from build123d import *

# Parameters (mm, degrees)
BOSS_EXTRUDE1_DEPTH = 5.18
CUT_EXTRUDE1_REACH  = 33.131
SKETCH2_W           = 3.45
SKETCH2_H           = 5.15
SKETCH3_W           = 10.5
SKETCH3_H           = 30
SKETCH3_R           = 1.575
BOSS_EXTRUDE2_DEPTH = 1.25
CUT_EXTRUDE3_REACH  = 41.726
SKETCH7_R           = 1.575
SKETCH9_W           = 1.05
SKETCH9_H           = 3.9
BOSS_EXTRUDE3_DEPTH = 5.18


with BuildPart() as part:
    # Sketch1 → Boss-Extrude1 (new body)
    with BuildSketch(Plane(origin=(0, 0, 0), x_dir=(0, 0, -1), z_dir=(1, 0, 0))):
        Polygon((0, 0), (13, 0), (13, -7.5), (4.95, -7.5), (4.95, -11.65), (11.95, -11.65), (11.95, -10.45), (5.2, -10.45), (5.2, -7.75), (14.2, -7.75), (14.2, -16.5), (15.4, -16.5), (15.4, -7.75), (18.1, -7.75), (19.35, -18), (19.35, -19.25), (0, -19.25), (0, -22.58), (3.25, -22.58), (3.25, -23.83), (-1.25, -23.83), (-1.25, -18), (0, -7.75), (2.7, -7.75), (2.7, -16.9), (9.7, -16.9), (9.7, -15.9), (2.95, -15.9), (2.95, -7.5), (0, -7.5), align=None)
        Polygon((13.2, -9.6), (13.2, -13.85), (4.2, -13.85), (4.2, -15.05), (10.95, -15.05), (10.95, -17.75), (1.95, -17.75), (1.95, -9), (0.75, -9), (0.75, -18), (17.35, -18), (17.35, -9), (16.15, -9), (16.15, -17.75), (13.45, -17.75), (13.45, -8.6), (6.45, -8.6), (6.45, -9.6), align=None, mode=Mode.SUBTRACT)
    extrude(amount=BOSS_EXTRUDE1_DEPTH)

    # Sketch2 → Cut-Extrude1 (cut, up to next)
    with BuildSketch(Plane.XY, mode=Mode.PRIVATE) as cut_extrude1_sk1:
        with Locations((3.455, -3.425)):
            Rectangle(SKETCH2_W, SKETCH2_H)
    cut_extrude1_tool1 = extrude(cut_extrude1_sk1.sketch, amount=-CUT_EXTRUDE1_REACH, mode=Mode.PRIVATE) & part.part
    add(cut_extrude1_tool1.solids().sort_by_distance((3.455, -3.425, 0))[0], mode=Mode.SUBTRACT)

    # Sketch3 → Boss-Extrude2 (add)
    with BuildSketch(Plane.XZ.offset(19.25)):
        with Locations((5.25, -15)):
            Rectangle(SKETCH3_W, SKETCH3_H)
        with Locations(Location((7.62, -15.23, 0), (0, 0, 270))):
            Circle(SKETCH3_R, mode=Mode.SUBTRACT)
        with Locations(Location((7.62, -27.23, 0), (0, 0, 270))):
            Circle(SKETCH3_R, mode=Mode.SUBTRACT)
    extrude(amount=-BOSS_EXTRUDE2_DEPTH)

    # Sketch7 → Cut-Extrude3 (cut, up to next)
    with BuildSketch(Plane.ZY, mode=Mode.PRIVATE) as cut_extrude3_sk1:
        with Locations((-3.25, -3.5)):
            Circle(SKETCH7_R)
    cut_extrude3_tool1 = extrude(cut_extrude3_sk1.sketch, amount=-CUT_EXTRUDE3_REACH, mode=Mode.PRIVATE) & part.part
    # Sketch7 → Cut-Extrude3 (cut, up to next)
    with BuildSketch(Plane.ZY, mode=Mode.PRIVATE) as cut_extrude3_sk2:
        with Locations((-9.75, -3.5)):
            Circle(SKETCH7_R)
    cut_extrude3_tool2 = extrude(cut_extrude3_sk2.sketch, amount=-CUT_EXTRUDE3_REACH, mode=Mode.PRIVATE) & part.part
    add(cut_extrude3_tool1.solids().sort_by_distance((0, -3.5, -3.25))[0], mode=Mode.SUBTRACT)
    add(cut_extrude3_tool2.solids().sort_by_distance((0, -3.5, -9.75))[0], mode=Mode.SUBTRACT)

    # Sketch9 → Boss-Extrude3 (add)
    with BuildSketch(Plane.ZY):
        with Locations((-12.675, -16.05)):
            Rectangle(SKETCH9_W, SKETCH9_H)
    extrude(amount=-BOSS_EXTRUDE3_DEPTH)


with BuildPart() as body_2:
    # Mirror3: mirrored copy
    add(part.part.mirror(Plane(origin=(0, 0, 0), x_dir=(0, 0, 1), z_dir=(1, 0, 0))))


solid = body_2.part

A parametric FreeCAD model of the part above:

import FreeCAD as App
import Part
import Sketcher
from FreeCAD import Vector
Q = App.Units.Quantity


def add_polygon(sketch, points):
    """Adds a closed chain of lines whose ends are joined by coincident constraints."""
    first, n = sketch.GeometryCount, len(points)
    for a, b in zip(points, points[1:] + points[:1]):
        sketch.addGeometry(Part.LineSegment(App.Vector(*a, 0), App.Vector(*b, 0)), False)
    for i in range(n):
        sketch.addConstraint(Sketcher.Constraint("Coincident", first + i, 2, first + (i + 1) % n, 1))

doc = App.newDocument("Part")
body = doc.addObject("PartDesign::Body", "Body")

sketch1 = body.newObject("Sketcher::SketchObject", "Sketch")
sketch1.AttachmentSupport = (doc.getObject("YZ_Plane"), [""])
sketch1.MapMode = "FlatFace"
add_polygon(sketch1, [(0, -13), (0, 0), (-7.5, 0), (-7.5, -3), (-15.9, -3), (-15.9, -9.7), (-16.9, -9.7), (-16.9, -2.7), (-7.8, -2.7), (-7.8, 0), (-18, 1.2), (-23.8, 1.2), (-23.8, -3.2), (-22.6, -3.2), (-22.6, 0), (-19.2, 0), (-19.2, -19.4), (-18, -19.4), (-7.8, -18.1), (-7.8, -15.4), (-16.5, -15.4), (-16.5, -14.2), (-7.8, -14.2), (-7.8, -5.2), (-10.4, -5.2), (-10.4, -11.9), (-11.7, -11.9), (-11.7, -5), (-7.5, -5), (-7.5, -13)])
add_polygon(sketch1, [(-9.6, -13.2), (-9.6, -6.5), (-8.6, -6.5), (-8.6, -13.4), (-17.8, -13.4), (-17.8, -16.1), (-9, -16.1), (-9, -17.4), (-18, -17.4), (-18, -0.8), (-9, -0.8), (-9, -1.9), (-17.8, -1.9), (-17.8, -10.9), (-15.1, -10.9), (-15.1, -4.2), (-13.8, -4.2), (-13.8, -13.2)])
sketch1.addConstraint([
    Sketcher.Constraint("Vertical", 0),
    Sketcher.Constraint("Horizontal", 1),
    Sketcher.Constraint("Vertical", 2),
    Sketcher.Constraint("Horizontal", 3),
    Sketcher.Constraint("Vertical", 4),
    Sketcher.Constraint("Horizontal", 5),
    Sketcher.Constraint("Vertical", 6),
    Sketcher.Constraint("Horizontal", 7),
    Sketcher.Constraint("Vertical", 8),
    Sketcher.Constraint("Horizontal", 10),
    Sketcher.Constraint("Vertical", 11),
    Sketcher.Constraint("Horizontal", 12),
    Sketcher.Constraint("Vertical", 13),
    Sketcher.Constraint("Horizontal", 14),
    Sketcher.Constraint("Vertical", 15),
    Sketcher.Constraint("Horizontal", 16),
    Sketcher.Constraint("Vertical", 18),
    Sketcher.Constraint("Horizontal", 19),
    Sketcher.Constraint("Vertical", 20),
    Sketcher.Constraint("Horizontal", 21),
    Sketcher.Constraint("Vertical", 22),
    Sketcher.Constraint("Horizontal", 23),
    Sketcher.Constraint("Vertical", 24),
    Sketcher.Constraint("Horizontal", 25),
    Sketcher.Constraint("Vertical", 26),
    Sketcher.Constraint("Horizontal", 27),
    Sketcher.Constraint("Vertical", 28),
    Sketcher.Constraint("Horizontal", 29),
    Sketcher.Constraint("Vertical", 30),
    Sketcher.Constraint("Horizontal", 31),
    Sketcher.Constraint("Vertical", 32),
    Sketcher.Constraint("Horizontal", 33),
    Sketcher.Constraint("Vertical", 34),
    Sketcher.Constraint("Horizontal", 35),
    Sketcher.Constraint("Vertical", 36),
    Sketcher.Constraint("Horizontal", 37),
    Sketcher.Constraint("Vertical", 38),
    Sketcher.Constraint("Horizontal", 39),
    Sketcher.Constraint("Vertical", 40),
    Sketcher.Constraint("Horizontal", 41),
    Sketcher.Constraint("Vertical", 42),
    Sketcher.Constraint("Horizontal", 43),
    Sketcher.Constraint("Vertical", 44),
    Sketcher.Constraint("Horizontal", 45),
    Sketcher.Constraint("Vertical", 46),
    Sketcher.Constraint("Horizontal", 47),
    Sketcher.Constraint("Coincident", 0, 2, -1, 1),
    Sketcher.Constraint("PointOnObject", 8, 2, -1),
    Sketcher.Constraint("PointOnObject", 13, 2, -1),
    Sketcher.Constraint("Vertical", 9, 2, 16, 2),
    Sketcher.Constraint("Vertical", 8, 2, 17, 2),
    Sketcher.Constraint("Vertical", 18, 2, 21, 2),
    Sketcher.Constraint("Vertical", 2, 2, 27, 2),
    Sketcher.Constraint("Vertical", 16, 2, 37, 2),
    Sketcher.Constraint("Vertical", 36, 2, 39, 2),
    Sketcher.Constraint("Vertical", 34, 2, 41, 2),
    Sketcher.Constraint("Equal", 12, 16),
    Sketcher.Constraint("Equal", 5, 31),
    Sketcher.Constraint("Equal", 7, 33),
    Sketcher.Constraint("Equal", 21, 35),
    Sketcher.Constraint("Equal", 23, 43),
    Sketcher.Constraint("Equal", 25, 45),
    Sketcher.Constraint("Equal", 43, 8),
    Sketcher.Constraint("Equal", 8, 18),
    Sketcher.Constraint("Equal", 45, 20),
    Sketcher.Constraint("Equal", 39, 22),
    Sketcher.Constraint("Equal", 4, 24),
    Sketcher.Constraint("Equal", 6, 26),
    Sketcher.Constraint("Equal", 24, 30),
    Sketcher.Constraint("Equal", 26, 32),
    Sketcher.Constraint("Equal", 18, 34),
    Sketcher.Constraint("Equal", 20, 36),
    Sketcher.Constraint("Equal", 36, 40),
    Sketcher.Constraint("Equal", 22, 42),
    Sketcher.Constraint("Equal", 30, 44),
    Sketcher.Constraint("Equal", 42, 46),
    Sketcher.Constraint("Equal", 9, 17),
    Sketcher.Constraint("DistanceX", 5, 2, 5, 1, Q("1 mm")),
    Sketcher.Constraint("DistanceX", 37, 2, 37, 1, Q("9 mm")),
    Sketcher.Constraint("DistanceY", 0, 1, 0, 2, Q("13 mm")),
    Sketcher.Constraint("DistanceY", 6, 1, 6, 2, Q("7 mm")),
    Sketcher.Constraint("DistanceX", 1, 2, 1, 1, Q("7.5 mm")),
    Sketcher.Constraint("DistanceX", 3, 2, 3, 1, Q("8.4 mm")),
    Sketcher.Constraint("DistanceX", 23, 2, 23, 1, Q("2.7 mm")),
    Sketcher.Constraint("DistanceX", 25, 2, 25, 1, Q("1.2 mm")),
    Sketcher.Constraint("DistanceY", 11, 2, 11, 1, Q("4.5 mm")),
    Sketcher.Constraint("DistanceY", 38, 1, 38, 2, Q("16.6 mm")),
    Sketcher.Constraint("DistanceX", 9, 2, -1, 1, Q("18 mm")),
    Sketcher.Constraint("DistanceY", 26, 2, 2, 2, Q("2 mm")),
    Sketcher.Constraint("DistanceY", 16, 2, 37, 2, Q("2 mm")),
    Sketcher.Constraint("DistanceY", 38, 2, 9, 2, Q("2 mm")),
    Sketcher.Constraint("DistanceX", 7, 1, 7, 2, Q("9.15 mm")),
    Sketcher.Constraint("DistanceX", 10, 2, 10, 1, Q("5.83 mm")),
    Sketcher.Constraint("DistanceX", 12, 1, 12, 2, Q("1.25 mm")),
    Sketcher.Constraint("DistanceX", 19, 2, 19, 1, Q("8.75 mm")),
])
pad1 = body.newObject("PartDesign::Pad", "Pad")
pad1.Profile = sketch1
pad1.Length = 5.18

sketch2 = body.newObject("Sketcher::SketchObject", "Sketch001")
sketch2.AttachmentSupport = (doc.getObject("XY_Plane"), [""])
sketch2.MapMode = "FlatFace"
add_polygon(sketch2, [(1.7, -0.8), (1.7, -6), (5.2, -6), (5.2, -0.8)])
sketch2.addConstraint([
    Sketcher.Constraint("Vertical", 0),
    Sketcher.Constraint("Horizontal", 1),
    Sketcher.Constraint("Vertical", 2),
    Sketcher.Constraint("Horizontal", 3),
    Sketcher.Constraint("DistanceY", 0, 2, -1, 1, Q("6 mm")),
    Sketcher.Constraint("DistanceX", 1, 1, 1, 2, Q("3.45 mm")),
    Sketcher.Constraint("DistanceY", 0, 2, 0, 1, Q("5.15 mm")),
    Sketcher.Constraint("DistanceX", -1, 1, 0, 2, Q("1.73 mm")),
])
pocket1 = body.newObject("PartDesign::Pocket", "Pocket")
pocket1.Profile = sketch2
pocket1.Type = "UpToFirst"

sketch3 = body.newObject("Sketcher::SketchObject", "Sketch002")
sketch3.AttachmentSupport = (doc.getObject("XZ_Plane"), [""])
sketch3.MapMode = "FlatFace"
sketch3.AttachmentOffset = App.Placement(Vector(0, 0, 19.25), App.Rotation())
add_polygon(sketch3, [(0, 0), (0, -30), (10.5, -30), (10.5, 0)])
sketch3.addGeometry(Part.Circle(Vector(7.6, -27.2, 0), Vector(0, 0, 1), 1.6), False)
sketch3.addGeometry(Part.Circle(Vector(7.6, -15.2, 0), Vector(0, 0, 1), 1.6), False)
sketch3.addConstraint([
    Sketcher.Constraint("Vertical", 0),
    Sketcher.Constraint("Horizontal", 1),
    Sketcher.Constraint("Vertical", 2),
    Sketcher.Constraint("Horizontal", 3),
    Sketcher.Constraint("Coincident", 3, 2, -1, 1),
    Sketcher.Constraint("Equal", 4, 5),
    Sketcher.Constraint("Vertical", 4, 3, 5, 3),
    Sketcher.Constraint("Diameter", 4, Q("3.15 mm")),
    Sketcher.Constraint("DistanceY", 0, 2, 0, 1, Q("30 mm")),
    Sketcher.Constraint("DistanceX", 1, 1, 1, 2, Q("10.5 mm")),
    Sketcher.Constraint("DistanceY", 4, 3, 5, 3, Q("12 mm")),
    Sketcher.Constraint("DistanceX", -1, 1, 4, 3, Q("7.62 mm")),
    Sketcher.Constraint("DistanceY", 4, 3, -1, 1, Q("27.23 mm")),
])
pad2 = body.newObject("PartDesign::Pad", "Pad001")
pad2.Profile = sketch3
pad2.Length = 1.25
pad2.Reversed = True

sketch4 = body.newObject("Sketcher::SketchObject", "Sketch003")
sketch4.AttachmentSupport = (doc.getObject("YZ_Plane"), [""])
sketch4.MapMode = "FlatFace"
sketch4.addGeometry(Part.Circle(Vector(-3.5, -3.2, 0), Vector(0, 0, 1), 1.6), False)
sketch4.addConstraint([
    Sketcher.Constraint("Diameter", 0, Q("3.15 mm")),
    Sketcher.Constraint("DistanceX", 0, 3, -1, 1, Q("3.5 mm")),
    Sketcher.Constraint("DistanceY", 0, 3, -1, 1, Q("3.25 mm")),
])
pocket2 = body.newObject("PartDesign::Pocket", "Pocket001")
pocket2.Profile = sketch4
pocket2.Type = "UpToFirst"
pocket2.Reversed = True

sketch5 = body.newObject("Sketcher::SketchObject", "Sketch004")
sketch5.AttachmentSupport = (doc.getObject("YZ_Plane"), [""])
sketch5.MapMode = "FlatFace"
sketch5.addGeometry(Part.Circle(Vector(-3.5, -9.8, 0), Vector(0, 0, 1), 1.6), False)
sketch5.addConstraint([
    Sketcher.Constraint("Diameter", 0, Q("3.15 mm")),
    Sketcher.Constraint("DistanceX", 0, 3, -1, 1, Q("3.5 mm")),
    Sketcher.Constraint("DistanceY", 0, 3, -1, 1, Q("9.75 mm")),
])
pocket3 = body.newObject("PartDesign::Pocket", "Pocket002")
pocket3.Profile = sketch5
pocket3.Type = "UpToFirst"
pocket3.Reversed = True

sketch6 = body.newObject("Sketcher::SketchObject", "Sketch005")
sketch6.AttachmentSupport = (doc.getObject("YZ_Plane"), [""])
sketch6.MapMode = "FlatFace"
add_polygon(sketch6, [(-14.1, -13.2), (-18, -13.2), (-18, -12.2), (-14.1, -12.2)])
sketch6.addConstraint([
    Sketcher.Constraint("Horizontal", 0),
    Sketcher.Constraint("Vertical", 1),
    Sketcher.Constraint("Horizontal", 2),
    Sketcher.Constraint("Vertical", 3),
    Sketcher.Constraint("DistanceX", 0, 2, 0, 1, Q("3.9 mm")),
    Sketcher.Constraint("DistanceX", 0, 2, -1, 1, Q("18 mm")),
    Sketcher.Constraint("DistanceY", 1, 1, 1, 2, Q("1.05 mm")),
    Sketcher.Constraint("DistanceY", 0, 2, -1, 1, Q("13.2 mm")),
])
pad3 = body.newObject("PartDesign::Pad", "Pad002")
pad3.Profile = sketch6
pad3.Length = 5.18
body2 = doc.addObject("PartDesign::Body", "Body001")
doc.recompute()

mirroring = doc.addObject("Part::Mirroring", "Mirroring")
mirroring.Source = body
mirroring.Base = Vector(0, 0, 0)
mirroring.Normal = Vector(1, 0, 0)
body2.BaseFeature = mirroring
doc.recompute()
body.Visibility = False
mirroring.Visibility = False

doc.recompute()
